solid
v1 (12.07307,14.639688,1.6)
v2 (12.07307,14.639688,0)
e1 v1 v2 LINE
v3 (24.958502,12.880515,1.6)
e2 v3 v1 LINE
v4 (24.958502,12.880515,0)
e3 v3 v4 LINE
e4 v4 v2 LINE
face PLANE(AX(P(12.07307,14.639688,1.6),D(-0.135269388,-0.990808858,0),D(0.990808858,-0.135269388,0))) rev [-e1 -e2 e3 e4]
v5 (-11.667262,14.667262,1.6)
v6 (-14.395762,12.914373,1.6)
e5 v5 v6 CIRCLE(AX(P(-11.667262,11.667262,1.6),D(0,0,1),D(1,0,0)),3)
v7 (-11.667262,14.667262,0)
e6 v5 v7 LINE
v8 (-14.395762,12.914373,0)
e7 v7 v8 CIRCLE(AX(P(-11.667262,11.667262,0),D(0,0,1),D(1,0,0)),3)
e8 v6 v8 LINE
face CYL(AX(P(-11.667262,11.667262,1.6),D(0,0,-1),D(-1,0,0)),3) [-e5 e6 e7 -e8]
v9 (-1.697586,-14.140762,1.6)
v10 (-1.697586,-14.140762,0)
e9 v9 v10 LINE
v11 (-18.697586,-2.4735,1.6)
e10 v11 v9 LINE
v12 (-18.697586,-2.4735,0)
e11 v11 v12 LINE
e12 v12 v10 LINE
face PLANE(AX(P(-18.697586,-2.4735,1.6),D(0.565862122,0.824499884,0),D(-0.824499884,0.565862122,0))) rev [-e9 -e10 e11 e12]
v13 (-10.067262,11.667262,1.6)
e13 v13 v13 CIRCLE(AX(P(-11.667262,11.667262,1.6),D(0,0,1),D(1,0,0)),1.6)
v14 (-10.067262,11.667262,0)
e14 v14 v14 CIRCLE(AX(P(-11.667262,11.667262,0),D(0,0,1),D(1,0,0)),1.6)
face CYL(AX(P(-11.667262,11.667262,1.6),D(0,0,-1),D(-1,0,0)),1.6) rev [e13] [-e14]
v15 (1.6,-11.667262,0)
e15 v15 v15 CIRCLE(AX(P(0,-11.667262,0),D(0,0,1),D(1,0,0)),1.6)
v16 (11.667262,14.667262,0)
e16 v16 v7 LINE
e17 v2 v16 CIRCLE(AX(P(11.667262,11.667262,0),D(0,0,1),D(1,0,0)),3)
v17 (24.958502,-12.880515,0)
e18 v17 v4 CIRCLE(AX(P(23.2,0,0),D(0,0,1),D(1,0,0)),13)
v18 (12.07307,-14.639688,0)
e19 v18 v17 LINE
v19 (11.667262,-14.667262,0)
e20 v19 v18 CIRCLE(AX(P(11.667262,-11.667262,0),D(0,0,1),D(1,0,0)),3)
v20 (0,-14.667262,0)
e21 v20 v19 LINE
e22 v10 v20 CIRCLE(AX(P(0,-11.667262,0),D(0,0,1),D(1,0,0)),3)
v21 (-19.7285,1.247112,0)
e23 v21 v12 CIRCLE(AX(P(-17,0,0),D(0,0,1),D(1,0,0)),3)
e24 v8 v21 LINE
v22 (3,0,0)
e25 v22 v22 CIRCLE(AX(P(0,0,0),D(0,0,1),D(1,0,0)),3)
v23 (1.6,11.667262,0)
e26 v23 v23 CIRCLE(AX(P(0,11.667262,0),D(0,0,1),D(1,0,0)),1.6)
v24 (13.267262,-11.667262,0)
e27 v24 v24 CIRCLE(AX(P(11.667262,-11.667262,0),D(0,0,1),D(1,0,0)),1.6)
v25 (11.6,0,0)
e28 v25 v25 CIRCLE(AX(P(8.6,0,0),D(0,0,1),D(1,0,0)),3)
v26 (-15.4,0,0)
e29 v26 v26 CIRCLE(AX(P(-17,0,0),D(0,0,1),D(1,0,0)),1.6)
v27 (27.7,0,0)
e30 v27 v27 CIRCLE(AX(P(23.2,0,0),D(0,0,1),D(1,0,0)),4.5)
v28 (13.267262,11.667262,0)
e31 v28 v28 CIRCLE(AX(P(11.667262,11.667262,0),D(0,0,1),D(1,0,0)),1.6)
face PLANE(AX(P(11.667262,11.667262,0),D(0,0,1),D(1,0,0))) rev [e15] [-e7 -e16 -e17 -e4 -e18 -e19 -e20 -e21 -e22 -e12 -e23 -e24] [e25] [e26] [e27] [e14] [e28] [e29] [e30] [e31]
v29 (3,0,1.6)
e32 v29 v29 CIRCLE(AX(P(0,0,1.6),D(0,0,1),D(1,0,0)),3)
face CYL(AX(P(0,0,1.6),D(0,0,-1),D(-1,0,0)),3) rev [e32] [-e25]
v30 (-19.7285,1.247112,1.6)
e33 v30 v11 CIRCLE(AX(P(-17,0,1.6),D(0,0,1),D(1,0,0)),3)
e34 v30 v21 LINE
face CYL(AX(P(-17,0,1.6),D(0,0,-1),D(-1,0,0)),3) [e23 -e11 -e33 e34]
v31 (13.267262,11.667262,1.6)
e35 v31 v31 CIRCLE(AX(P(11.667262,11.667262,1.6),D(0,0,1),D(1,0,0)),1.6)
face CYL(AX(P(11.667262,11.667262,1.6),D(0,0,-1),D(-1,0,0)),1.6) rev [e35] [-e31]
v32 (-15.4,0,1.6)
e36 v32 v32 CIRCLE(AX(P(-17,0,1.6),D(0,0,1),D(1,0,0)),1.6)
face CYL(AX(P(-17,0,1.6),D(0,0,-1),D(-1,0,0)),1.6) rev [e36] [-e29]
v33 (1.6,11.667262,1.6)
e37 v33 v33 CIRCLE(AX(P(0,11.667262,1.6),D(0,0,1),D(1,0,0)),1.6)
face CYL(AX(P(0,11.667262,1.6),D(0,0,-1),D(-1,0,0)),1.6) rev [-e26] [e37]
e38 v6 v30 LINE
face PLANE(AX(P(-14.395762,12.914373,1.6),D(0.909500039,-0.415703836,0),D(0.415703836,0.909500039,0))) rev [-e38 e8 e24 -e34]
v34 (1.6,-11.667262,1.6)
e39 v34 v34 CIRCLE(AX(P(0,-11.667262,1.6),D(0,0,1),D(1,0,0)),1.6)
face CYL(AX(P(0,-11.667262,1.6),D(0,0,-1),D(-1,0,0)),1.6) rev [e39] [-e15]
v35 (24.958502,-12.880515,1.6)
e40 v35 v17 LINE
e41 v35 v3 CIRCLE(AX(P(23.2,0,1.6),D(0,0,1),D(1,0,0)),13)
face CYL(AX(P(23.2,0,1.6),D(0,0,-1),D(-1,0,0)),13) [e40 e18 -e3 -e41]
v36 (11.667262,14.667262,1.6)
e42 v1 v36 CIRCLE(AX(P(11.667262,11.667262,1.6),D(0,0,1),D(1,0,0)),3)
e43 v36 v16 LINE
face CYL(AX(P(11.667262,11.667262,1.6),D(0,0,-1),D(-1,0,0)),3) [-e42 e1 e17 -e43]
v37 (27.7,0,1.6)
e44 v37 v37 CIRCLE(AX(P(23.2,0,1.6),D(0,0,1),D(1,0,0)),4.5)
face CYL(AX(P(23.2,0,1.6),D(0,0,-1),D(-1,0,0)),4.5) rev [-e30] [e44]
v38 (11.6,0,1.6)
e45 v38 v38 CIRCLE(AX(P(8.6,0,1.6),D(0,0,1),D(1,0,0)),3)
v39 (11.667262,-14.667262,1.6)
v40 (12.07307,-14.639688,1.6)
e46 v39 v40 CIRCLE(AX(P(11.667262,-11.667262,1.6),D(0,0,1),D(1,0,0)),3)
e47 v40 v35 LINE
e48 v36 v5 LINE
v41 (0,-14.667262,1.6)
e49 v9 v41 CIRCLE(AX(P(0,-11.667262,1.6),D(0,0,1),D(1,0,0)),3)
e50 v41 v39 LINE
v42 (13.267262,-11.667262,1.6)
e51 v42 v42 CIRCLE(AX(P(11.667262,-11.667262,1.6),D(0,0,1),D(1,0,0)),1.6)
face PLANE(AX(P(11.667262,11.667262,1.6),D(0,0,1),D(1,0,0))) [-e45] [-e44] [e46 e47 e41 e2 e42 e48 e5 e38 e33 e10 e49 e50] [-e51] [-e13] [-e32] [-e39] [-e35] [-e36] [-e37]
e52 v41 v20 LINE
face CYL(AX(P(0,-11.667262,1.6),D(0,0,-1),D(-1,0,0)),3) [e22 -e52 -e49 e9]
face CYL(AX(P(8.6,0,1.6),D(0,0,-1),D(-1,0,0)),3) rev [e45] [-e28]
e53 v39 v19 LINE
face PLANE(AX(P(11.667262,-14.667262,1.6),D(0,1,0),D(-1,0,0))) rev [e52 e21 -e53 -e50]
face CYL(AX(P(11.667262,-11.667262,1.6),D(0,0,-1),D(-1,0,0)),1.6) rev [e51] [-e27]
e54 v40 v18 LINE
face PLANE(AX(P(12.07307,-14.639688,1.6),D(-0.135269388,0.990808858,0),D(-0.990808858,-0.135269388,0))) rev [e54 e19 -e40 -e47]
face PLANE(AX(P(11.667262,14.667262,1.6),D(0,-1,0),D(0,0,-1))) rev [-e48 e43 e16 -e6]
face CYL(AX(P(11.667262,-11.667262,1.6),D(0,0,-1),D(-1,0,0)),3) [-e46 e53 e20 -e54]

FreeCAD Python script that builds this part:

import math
import FreeCAD as App
import Part
import Sketcher
from FreeCAD import Vector

doc = App.newDocument("Part")
body = doc.addObject("PartDesign::Body", "Body")

sketch1 = body.newObject("Sketcher::SketchObject", "Sketch")
sketch1.AttachmentSupport = (doc.getObject("XY_Plane"), [""])
sketch1.MapMode = "FlatFace"
sketch1.addGeometry([
    Part.LineSegment(Vector(24.96, 12.88, 0), Vector(12.07, 14.64, 0)),
    Part.ArcOfCircle(Part.Circle(Vector(11.67, 11.67, 0), Vector(0, 0, 1), 3), math.radians(82.23), math.radians(90)),
    Part.LineSegment(Vector(11.67, 14.67, 0), Vector(-11.67, 14.67, 0)),
    Part.ArcOfCircle(Part.Circle(Vector(-11.67, 11.67, 0), Vector(0, 0, 1), 3), math.radians(90), math.radians(155)),
    Part.LineSegment(Vector(-14.4, 12.91, 0), Vector(-19.73, 1.25, 0)),
    Part.ArcOfCircle(Part.Circle(Vector(-17, 0, 0), Vector(0, 0, 1), 3), math.radians(155), math.radians(236)),
    Part.LineSegment(Vector(-18.7, -2.47, 0), Vector(-1.7, -14.14, 0)),
    Part.ArcOfCircle(Part.Circle(Vector(0, -11.67, 0), Vector(0, 0, 1), 3), math.radians(-124), math.radians(-90)),
    Part.LineSegment(Vector(0, -14.67, 0), Vector(11.67, -14.67, 0)),
    Part.ArcOfCircle(Part.Circle(Vector(11.67, -11.67, 0), Vector(0, 0, 1), 3), math.radians(-90), math.radians(-82.23)),
    Part.LineSegment(Vector(12.07, -14.64, 0), Vector(24.96, -12.88, 0)),
    Part.ArcOfCircle(Part.Circle(Vector(23.2, 0, 0), Vector(0, 0, 1), 13), math.radians(-82), math.radians(82)),
    Part.Circle(Vector(11.67, -11.67, 0), Vector(0, 0, 1), 1.6),
    Part.Circle(Vector(0, -11.67, 0), Vector(0, 0, 1), 1.6),
    Part.Circle(Vector(23.2, 0, 0), Vector(0, 0, 1), 4.5),
    Part.Circle(Vector(8.6, 0, 0), Vector(0, 0, 1), 3),
    Part.Circle(Vector(11.67, 11.67, 0), Vector(0, 0, 1), 1.6),
    Part.Circle(Vector(0, 0, 0), Vector(0, 0, 1), 3),
    Part.Circle(Vector(-17, 0, 0), Vector(0, 0, 1), 1.6),
    Part.Circle(Vector(0, 11.67, 0), Vector(0, 0, 1), 1.6),
    Part.Circle(Vector(-11.67, 11.67, 0), Vector(0, 0, 1), 1.6),
], False)
sketch1.addConstraint([
    Sketcher.Constraint("Tangent", 0, 2, 1, 1),
    Sketcher.Constraint("Tangent", 1, 2, 2, 1),
    Sketcher.Constraint("Tangent", 2, 2, 3, 1),
    Sketcher.Constraint("Tangent", 3, 2, 4, 1),
    Sketcher.Constraint("Tangent", 4, 2, 5, 1),
    Sketcher.Constraint("Tangent", 5, 2, 6, 1),
    Sketcher.Constraint("Tangent", 6, 2, 7, 1),
    Sketcher.Constraint("Tangent", 7, 2, 8, 1),
    Sketcher.Constraint("Tangent", 8, 2, 9, 1),
    Sketcher.Constraint("Tangent", 9, 2, 10, 1),
    Sketcher.Constraint("Tangent", 10, 2, 11, 1),
    Sketcher.Constraint("Tangent", 11, 2, 0, 1),
    Sketcher.Constraint("Horizontal", 2),
    Sketcher.Constraint("Horizontal", 8),
    Sketcher.Constraint("Coincident", 17, 3, -1, 1),
    Sketcher.Constraint("Coincident", 12, 3, 9, 3),
    Sketcher.Constraint("Coincident", 13, 3, 7, 3),
    Sketcher.Constraint("Coincident", 14, 3, 11, 3),
    Sketcher.Constraint("Coincident", 16, 3, 1, 3),
    Sketcher.Constraint("Coincident", 18, 3, 5, 3),
    Sketcher.Constraint("Coincident", 20, 3, 3, 3),
    Sketcher.Constraint("Equal", 1, 3),
    Sketcher.Constraint("Equal", 3, 5),
    Sketcher.Constraint("Equal", 5, 7),
    Sketcher.Constraint("Equal", 7, 9),
    Sketcher.Constraint("Equal", 12, 13),
    Sketcher.Constraint("Equal", 9, 15),
    Sketcher.Constraint("Equal", 13, 16),
    Sketcher.Constraint("Equal", 15, 17),
    Sketcher.Constraint("Equal", 16, 18),
    Sketcher.Constraint("Equal", 18, 19),
    Sketcher.Constraint("Equal", 19, 20),
    Sketcher.Constraint("Symmetric", 3, 3, 9, 3, -1, 1),
    Sketcher.Constraint("Symmetric", 7, 3, 19, 3, -1, 1),
    Sketcher.Constraint("Symmetric", 0, 2, 9, 2, -1),
    Sketcher.Constraint("PointOnObject", 5, 3, -1),
    Sketcher.Constraint("PointOnObject", 7, 3, -2),
    Sketcher.Constraint("PointOnObject", 15, 3, -1),
    Sketcher.Constraint("Diameter", 14, 9.0),
    Sketcher.Constraint("Diameter", 15, 6.0),
    Sketcher.Constraint("Radius", 11, 13.0),
    Sketcher.Constraint("Diameter", 12, 3.2),
    Sketcher.Constraint("DistanceX", 5, 3, -1, 1, 17.0),
    Sketcher.Constraint("DistanceX", -1, 1, 11, 3, 23.2),
    Sketcher.Constraint("DistanceX", -1, 1, 15, 3, 8.6),
    Sketcher.Constraint("DistanceX", 8, 1, 8, 2, 11.667262),
    Sketcher.Constraint("DistanceX", 4, 2, -1, 1, 19.7285),
])
pad1 = body.newObject("PartDesign::Pad", "Pad")
pad1.Profile = sketch1
pad1.Length = 1.6

doc.recompute()
